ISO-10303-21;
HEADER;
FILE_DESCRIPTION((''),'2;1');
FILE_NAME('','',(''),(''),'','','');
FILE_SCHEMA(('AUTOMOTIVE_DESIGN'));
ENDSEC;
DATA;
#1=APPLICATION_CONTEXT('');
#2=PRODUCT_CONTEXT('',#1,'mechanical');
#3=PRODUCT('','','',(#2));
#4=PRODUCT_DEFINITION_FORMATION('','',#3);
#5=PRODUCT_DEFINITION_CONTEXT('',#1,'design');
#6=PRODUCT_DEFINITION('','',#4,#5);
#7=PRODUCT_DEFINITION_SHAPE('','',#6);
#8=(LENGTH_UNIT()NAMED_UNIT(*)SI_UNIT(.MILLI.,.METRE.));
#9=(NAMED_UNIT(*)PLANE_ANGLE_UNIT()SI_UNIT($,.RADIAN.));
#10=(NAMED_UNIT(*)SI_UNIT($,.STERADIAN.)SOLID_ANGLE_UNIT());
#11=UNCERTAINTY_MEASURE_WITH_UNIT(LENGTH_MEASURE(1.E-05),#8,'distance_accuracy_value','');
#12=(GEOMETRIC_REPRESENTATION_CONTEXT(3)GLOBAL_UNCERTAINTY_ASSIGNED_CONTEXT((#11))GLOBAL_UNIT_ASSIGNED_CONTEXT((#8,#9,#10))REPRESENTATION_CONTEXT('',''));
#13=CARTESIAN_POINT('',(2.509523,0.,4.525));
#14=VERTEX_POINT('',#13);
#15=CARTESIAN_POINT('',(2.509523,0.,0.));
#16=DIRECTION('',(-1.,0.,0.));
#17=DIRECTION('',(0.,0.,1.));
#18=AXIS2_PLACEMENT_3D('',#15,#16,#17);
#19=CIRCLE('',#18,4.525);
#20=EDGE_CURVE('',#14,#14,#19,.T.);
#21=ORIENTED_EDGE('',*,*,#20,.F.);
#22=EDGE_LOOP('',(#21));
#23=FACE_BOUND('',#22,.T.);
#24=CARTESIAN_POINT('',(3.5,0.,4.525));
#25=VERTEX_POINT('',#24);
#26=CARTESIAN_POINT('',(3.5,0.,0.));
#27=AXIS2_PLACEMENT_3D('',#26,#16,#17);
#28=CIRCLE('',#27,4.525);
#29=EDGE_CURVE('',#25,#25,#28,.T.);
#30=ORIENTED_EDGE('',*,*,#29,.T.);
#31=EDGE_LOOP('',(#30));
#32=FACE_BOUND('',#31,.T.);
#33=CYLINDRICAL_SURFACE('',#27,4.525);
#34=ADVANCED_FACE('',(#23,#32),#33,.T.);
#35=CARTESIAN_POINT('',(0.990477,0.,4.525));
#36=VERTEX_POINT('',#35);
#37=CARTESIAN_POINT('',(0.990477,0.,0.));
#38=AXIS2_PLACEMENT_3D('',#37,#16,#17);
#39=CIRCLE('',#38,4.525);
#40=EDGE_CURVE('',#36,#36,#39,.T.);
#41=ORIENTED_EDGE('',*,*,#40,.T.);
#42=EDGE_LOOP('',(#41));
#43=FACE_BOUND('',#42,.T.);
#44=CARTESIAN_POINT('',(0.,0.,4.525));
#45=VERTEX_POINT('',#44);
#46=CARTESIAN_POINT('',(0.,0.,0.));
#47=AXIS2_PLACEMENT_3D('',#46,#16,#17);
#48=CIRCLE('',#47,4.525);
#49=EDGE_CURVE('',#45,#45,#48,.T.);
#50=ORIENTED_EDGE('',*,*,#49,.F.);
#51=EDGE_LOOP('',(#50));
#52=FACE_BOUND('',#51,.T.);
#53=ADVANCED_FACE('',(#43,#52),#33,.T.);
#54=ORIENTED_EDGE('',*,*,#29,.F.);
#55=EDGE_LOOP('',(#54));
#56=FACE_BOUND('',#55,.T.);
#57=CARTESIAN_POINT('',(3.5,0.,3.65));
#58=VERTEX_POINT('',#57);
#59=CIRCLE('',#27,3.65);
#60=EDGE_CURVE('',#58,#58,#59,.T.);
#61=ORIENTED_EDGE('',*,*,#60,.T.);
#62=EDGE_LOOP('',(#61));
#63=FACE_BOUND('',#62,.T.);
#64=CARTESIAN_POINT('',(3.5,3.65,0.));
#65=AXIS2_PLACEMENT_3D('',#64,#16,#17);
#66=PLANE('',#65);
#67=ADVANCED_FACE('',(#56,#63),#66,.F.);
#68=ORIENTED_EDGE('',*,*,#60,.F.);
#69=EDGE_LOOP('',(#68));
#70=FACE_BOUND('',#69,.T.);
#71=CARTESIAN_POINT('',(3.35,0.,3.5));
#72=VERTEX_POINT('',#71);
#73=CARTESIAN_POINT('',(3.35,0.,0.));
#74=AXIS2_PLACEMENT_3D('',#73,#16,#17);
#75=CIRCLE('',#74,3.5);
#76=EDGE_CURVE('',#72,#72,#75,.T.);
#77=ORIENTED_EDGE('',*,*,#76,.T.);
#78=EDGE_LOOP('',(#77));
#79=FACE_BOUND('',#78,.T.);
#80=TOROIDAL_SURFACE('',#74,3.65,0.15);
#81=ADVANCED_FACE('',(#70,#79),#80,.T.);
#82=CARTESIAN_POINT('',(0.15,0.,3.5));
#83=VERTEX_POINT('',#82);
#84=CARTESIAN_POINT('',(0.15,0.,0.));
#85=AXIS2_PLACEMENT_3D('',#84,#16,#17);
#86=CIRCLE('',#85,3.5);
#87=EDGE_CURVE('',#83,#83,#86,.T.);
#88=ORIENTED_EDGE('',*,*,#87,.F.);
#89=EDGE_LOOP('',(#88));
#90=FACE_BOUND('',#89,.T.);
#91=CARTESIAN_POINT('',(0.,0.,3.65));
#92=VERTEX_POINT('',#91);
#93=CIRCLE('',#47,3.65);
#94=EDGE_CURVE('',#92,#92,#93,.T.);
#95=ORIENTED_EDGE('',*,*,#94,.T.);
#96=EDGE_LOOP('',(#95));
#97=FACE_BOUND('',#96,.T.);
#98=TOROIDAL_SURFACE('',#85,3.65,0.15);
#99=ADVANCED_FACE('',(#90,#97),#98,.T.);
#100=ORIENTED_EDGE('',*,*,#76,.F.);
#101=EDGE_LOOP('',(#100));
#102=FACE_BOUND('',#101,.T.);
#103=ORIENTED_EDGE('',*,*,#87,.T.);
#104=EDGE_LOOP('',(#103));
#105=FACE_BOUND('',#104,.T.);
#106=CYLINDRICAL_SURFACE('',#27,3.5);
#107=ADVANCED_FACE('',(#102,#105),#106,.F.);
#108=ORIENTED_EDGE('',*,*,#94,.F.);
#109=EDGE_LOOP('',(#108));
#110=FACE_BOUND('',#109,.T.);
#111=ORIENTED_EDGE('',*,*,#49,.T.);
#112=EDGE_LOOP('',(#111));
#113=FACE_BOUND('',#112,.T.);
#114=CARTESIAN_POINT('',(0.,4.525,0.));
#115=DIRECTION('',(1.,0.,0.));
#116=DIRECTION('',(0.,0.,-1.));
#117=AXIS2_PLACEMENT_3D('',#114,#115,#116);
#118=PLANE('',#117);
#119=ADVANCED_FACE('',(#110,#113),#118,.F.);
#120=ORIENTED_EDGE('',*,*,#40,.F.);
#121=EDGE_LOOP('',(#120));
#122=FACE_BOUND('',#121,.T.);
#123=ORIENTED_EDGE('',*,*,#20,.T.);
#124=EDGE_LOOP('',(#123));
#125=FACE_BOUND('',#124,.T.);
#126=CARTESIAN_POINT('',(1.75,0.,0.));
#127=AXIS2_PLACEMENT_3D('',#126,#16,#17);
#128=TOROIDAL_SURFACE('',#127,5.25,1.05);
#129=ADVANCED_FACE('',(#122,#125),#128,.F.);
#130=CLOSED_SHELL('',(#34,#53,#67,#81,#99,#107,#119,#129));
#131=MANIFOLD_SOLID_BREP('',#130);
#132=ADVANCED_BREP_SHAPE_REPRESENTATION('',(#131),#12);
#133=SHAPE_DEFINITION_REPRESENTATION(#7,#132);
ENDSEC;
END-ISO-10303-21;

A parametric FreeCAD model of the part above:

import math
import FreeCAD as App
import Part
import Sketcher
Q = App.Units.Quantity

doc = App.newDocument("Part")
body = doc.addObject("PartDesign::Body", "Body")

# Sketch on XY plane
sketch1 = body.newObject("Sketcher::SketchObject", "Sketch")
sketch1.AttachmentSupport = (doc.getObject("XY_Plane"), [""])
sketch1.MapMode = "FlatFace"
sketch1.addGeometry(Part.LineSegment(App.Vector(0, 4.525, 0), App.Vector(0, 3.65, 0)), False)
sketch1.addGeometry(Part.ArcOfCircle(Part.Circle(App.Vector(0.15, 3.65, 0), App.Vector(0, 0, 1), 0.15), math.radians(-180), math.radians(-90)), False)
sketch1.addGeometry(Part.LineSegment(App.Vector(0.15, 3.5, 0), App.Vector(3.35, 3.5, 0)), False)
sketch1.addGeometry(Part.ArcOfCircle(Part.Circle(App.Vector(3.35, 3.65, 0), App.Vector(0, 0, 1), 0.15), math.radians(-90), math.radians(0)), False)
sketch1.addGeometry(Part.LineSegment(App.Vector(3.5, 3.65, 0), App.Vector(3.5, 4.525, 0)), False)
sketch1.addGeometry(Part.LineSegment(App.Vector(3.5, 4.525, 0), App.Vector(2.509523, 4.525, 0)), False)
sketch1.addGeometry(Part.ArcOfCircle(Part.Circle(App.Vector(1.75, 5.25, 0), App.Vector(0, 0, 1), 1.05), math.radians(-136.332185), math.radians(-43.667815)), False)
sketch1.addGeometry(Part.LineSegment(App.Vector(0.990477, 4.525, 0), App.Vector(0, 4.525, 0)), False)
sketch1.addConstraint(Sketcher.Constraint("Tangent", 0, 2, 1, 1))
sketch1.addConstraint(Sketcher.Constraint("Tangent", 1, 2, 2, 1))
sketch1.addConstraint(Sketcher.Constraint("Tangent", 2, 2, 3, 1))
sketch1.addConstraint(Sketcher.Constraint("Tangent", 3, 2, 4, 1))
sketch1.addConstraint(Sketcher.Constraint("Coincident", 4, 2, 5, 1))
sketch1.addConstraint(Sketcher.Constraint("Coincident", 5, 2, 6, 2))
sketch1.addConstraint(Sketcher.Constraint("Coincident", 6, 1, 7, 1))
sketch1.addConstraint(Sketcher.Constraint("Coincident", 7, 2, 0, 1))
sketch1.addConstraint(Sketcher.Constraint("Vertical", 0))
sketch1.addConstraint(Sketcher.Constraint("Horizontal", 2))
sketch1.addConstraint(Sketcher.Constraint("Vertical", 4))
sketch1.addConstraint(Sketcher.Constraint("Horizontal", 5))
sketch1.addConstraint(Sketcher.Constraint("Horizontal", 7))
sketch1.addConstraint(Sketcher.Constraint("Equal", 1, 3))
sketch1.addConstraint(Sketcher.Constraint("PointOnObject", 0, 2, -2))
sketch1.addConstraint(Sketcher.Constraint("Horizontal", 5, 2, 6, 1))
sketch1.addConstraint(Sketcher.Constraint("Equal", 5, 7))
sketch1.addConstraint(Sketcher.Constraint("Radius", 1, Q("0.15 mm")))
sketch1.addConstraint(Sketcher.Constraint("Radius", 6, Q("1.05 mm")))
sketch1.addConstraint(Sketcher.Constraint("DistanceX", 2, 1, 2, 2, Q("3.2 mm")))
sketch1.addConstraint(Sketcher.Constraint("DistanceY", -1, 1, 1, 2, Q("3.5 mm")))
sketch1.addConstraint(Sketcher.Constraint("DistanceY", 1, 3, 6, 3, Q("1.6 mm")))
sketch1.addConstraint(Sketcher.Constraint("DistanceY", 0, 2, 0, 1, Q("0.875 mm")))
revolution = body.newObject("PartDesign::Revolution", "Revolution")
revolution.Profile = sketch1
revolution.ReferenceAxis = (sketch1, ["H_Axis"])
revolution.Angle = 360

doc.recompute()
